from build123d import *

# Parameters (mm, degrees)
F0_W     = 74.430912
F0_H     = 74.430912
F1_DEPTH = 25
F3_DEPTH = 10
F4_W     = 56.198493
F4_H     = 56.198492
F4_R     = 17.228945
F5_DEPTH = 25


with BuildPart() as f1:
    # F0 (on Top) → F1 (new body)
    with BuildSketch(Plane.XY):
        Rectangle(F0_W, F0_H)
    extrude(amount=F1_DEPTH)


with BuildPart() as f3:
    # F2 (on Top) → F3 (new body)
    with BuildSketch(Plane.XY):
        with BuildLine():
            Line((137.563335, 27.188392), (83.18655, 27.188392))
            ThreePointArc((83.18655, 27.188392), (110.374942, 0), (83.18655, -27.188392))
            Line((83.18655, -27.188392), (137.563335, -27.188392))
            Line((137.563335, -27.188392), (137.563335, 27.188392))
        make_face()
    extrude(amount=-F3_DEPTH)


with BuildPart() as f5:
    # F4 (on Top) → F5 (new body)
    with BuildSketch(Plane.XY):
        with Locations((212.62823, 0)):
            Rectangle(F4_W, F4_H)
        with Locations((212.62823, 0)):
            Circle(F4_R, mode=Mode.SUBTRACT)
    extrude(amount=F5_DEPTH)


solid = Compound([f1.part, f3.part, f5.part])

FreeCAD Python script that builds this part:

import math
import FreeCAD as App
import Part
import Sketcher

V = App.Vector

doc = App.newDocument("Part")
body = doc.addObject("PartDesign::Body", "Body")

# Sketch on XY plane
sketch1 = body.newObject("Sketcher::SketchObject", "Sketch")
sketch1.AttachmentSupport = (doc.getObject("XY_Plane"), [""])
sketch1.MapMode = "FlatFace"
sketch1.addGeometry(Part.LineSegment(V(-37, 37, 0), V(-37, -37, 0)), False)
sketch1.addGeometry(Part.LineSegment(V(-37, -37, 0), V(37, -37, 0)), False)
sketch1.addGeometry(Part.LineSegment(V(37, -37, 0), V(37, 37, 0)), False)
sketch1.addGeometry(Part.LineSegment(V(37, 37, 0), V(-37, 37, 0)), False)
sketch1.addConstraint(Sketcher.Constraint("Coincident", 0, 2, 1, 1))
sketch1.addConstraint(Sketcher.Constraint("Coincident", 1, 2, 2, 1))
sketch1.addConstraint(Sketcher.Constraint("Coincident", 2, 2, 3, 1))
sketch1.addConstraint(Sketcher.Constraint("Coincident", 3, 2, 0, 1))
sketch1.addConstraint(Sketcher.Constraint("Vertical", 0))
sketch1.addConstraint(Sketcher.Constraint("Horizontal", 1))
sketch1.addConstraint(Sketcher.Constraint("Vertical", 2))
sketch1.addConstraint(Sketcher.Constraint("Horizontal", 3))
sketch1.addConstraint(Sketcher.Constraint("Symmetric", 0, 2, 2, 2, -1, 1))
sketch1.addConstraint(Sketcher.Constraint("Equal", 3, 0))
sketch1.addConstraint(Sketcher.Constraint("DistanceX", 1, 1, 1, 2, 74.430912))
pad1 = body.newObject("PartDesign::Pad", "Pad")
pad1.Profile = sketch1
pad1.Length = 25
body2 = doc.addObject("PartDesign::Body", "Body001")

# Sketch on XY plane
sketch2 = body2.newObject("Sketcher::SketchObject", "Sketch001")
sketch2.AttachmentSupport = (doc.getObject("XY_Plane001"), [""])
sketch2.MapMode = "FlatFace"
sketch2.addGeometry(Part.LineSegment(V(138, 27, 0), V(83, 27, 0)), False)
sketch2.addGeometry(Part.ArcOfCircle(Part.Circle(V(83, 0, 0), V(0, 0, 1), 27), math.radians(-90), math.radians(90)), False)
sketch2.addGeometry(Part.LineSegment(V(83, -27, 0), V(138, -27, 0)), False)
sketch2.addGeometry(Part.LineSegment(V(138, -27, 0), V(138, 27, 0)), False)
sketch2.addConstraint(Sketcher.Constraint("Tangent", 0, 2, 1, 2))
sketch2.addConstraint(Sketcher.Constraint("Tangent", 1, 1, 2, 1))
sketch2.addConstraint(Sketcher.Constraint("Coincident", 2, 2, 3, 1))
sketch2.addConstraint(Sketcher.Constraint("Coincident", 3, 2, 0, 1))
sketch2.addConstraint(Sketcher.Constraint("Horizontal", 0))
sketch2.addConstraint(Sketcher.Constraint("Horizontal", 2))
sketch2.addConstraint(Sketcher.Constraint("Vertical", 3))
sketch2.addConstraint(Sketcher.Constraint("PointOnObject", 1, 3, -1))
sketch2.addConstraint(Sketcher.Constraint("Equal", 2, 3))
sketch2.addConstraint(Sketcher.Constraint("Radius", 1, 27.188392))
sketch2.addConstraint(Sketcher.Constraint("DistanceX", -1, 1, 1, 3, 83.18655))
pad2 = body2.newObject("PartDesign::Pad", "Pad001")
pad2.Profile = sketch2
pad2.Length = 10
pad2.Reversed = True
body3 = doc.addObject("PartDesign::Body", "Body002")

# Sketch on XY plane
sketch3 = body3.newObject("Sketcher::SketchObject", "Sketch002")
sketch3.AttachmentSupport = (doc.getObject("XY_Plane002"), [""])
sketch3.MapMode = "FlatFace"
sketch3.addGeometry(Part.LineSegment(V(185, 28, 0), V(185, -28, 0)), False)
sketch3.addGeometry(Part.LineSegment(V(185, -28, 0), V(241, -28, 0)), False)
sketch3.addGeometry(Part.LineSegment(V(241, -28, 0), V(241, 28, 0)), False)
sketch3.addGeometry(Part.LineSegment(V(241, 28, 0), V(185, 28, 0)), False)
sketch3.addGeometry(Part.Circle(V(213, 0, 0), V(0, 0, 1), 17), False)
sketch3.addConstraint(Sketcher.Constraint("Coincident", 0, 2, 1, 1))
sketch3.addConstraint(Sketcher.Constraint("Coincident", 1, 2, 2, 1))
sketch3.addConstraint(Sketcher.Constraint("Coincident", 2, 2, 3, 1))
sketch3.addConstraint(Sketcher.Constraint("Coincident", 3, 2, 0, 1))
sketch3.addConstraint(Sketcher.Constraint("Vertical", 0))
sketch3.addConstraint(Sketcher.Constraint("Horizontal", 1))
sketch3.addConstraint(Sketcher.Constraint("Vertical", 2))
sketch3.addConstraint(Sketcher.Constraint("Horizontal", 3))
sketch3.addConstraint(Sketcher.Constraint("PointOnObject", 4, 3, -1))
sketch3.addConstraint(Sketcher.Constraint("Equal", 3, 0))
sketch3.addConstraint(Sketcher.Constraint("Diameter", 4, 34.45789))
sketch3.addConstraint(Sketcher.Constraint("DistanceX", 1, 1, 1, 2, 56.198493))
sketch3.addConstraint(Sketcher.Constraint("DistanceX", -1, 1, 4, 3, 212.62823))
sketch3.addConstraint(Sketcher.Constraint("DistanceX", -1, 1, 0, 2, 184.528984))
sketch3.addConstraint(Sketcher.Constraint("DistanceY", 0, 2, -1, 1, 28.099246))
pad3 = body3.newObject("PartDesign::Pad", "Pad002")
pad3.Profile = sketch3
pad3.Length = 25

doc.recompute()
